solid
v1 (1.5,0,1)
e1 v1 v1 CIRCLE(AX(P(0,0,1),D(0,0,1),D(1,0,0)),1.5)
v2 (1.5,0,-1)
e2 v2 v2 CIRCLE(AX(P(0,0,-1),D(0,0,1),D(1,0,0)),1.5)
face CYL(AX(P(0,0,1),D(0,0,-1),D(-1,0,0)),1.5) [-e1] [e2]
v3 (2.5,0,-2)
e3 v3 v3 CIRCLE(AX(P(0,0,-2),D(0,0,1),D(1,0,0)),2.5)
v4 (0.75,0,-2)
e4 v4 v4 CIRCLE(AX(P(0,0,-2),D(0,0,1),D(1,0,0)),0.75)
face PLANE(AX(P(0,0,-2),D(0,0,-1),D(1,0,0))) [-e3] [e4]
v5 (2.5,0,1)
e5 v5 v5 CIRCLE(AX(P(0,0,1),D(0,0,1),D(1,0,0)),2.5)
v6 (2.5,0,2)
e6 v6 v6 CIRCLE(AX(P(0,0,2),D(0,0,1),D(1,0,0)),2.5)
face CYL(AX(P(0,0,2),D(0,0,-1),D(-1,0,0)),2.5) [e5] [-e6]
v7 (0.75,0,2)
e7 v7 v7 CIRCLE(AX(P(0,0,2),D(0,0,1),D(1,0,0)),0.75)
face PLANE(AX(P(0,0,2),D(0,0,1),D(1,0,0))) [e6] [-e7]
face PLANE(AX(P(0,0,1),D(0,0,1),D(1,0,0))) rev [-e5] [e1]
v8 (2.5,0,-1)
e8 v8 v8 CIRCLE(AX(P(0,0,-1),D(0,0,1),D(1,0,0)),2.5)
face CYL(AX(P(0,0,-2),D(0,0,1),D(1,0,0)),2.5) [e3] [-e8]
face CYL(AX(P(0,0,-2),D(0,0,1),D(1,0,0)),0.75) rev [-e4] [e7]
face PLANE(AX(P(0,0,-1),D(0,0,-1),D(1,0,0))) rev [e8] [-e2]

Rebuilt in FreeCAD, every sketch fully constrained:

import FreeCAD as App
import Part
import Sketcher
from FreeCAD import Vector

doc = App.newDocument("Part")
body = doc.addObject("PartDesign::Body", "Body")

# Sketch on XY plane
sketch1 = body.newObject("Sketcher::SketchObject", "Sketch")
sketch1.AttachmentSupport = (doc.getObject("XY_Plane"), [""])
sketch1.MapMode = "FlatFace"
sketch1.addGeometry(Part.Circle(Vector(0, 0, 0), Vector(0, 0, 1), 1.5), False)
sketch1.addConstraint([
    Sketcher.Constraint("Coincident", 0, 3, -1, 1),
    Sketcher.Constraint("Diameter", 0, 3.0),
])
pad1 = body.newObject("PartDesign::Pad", "Pad")
pad1.Profile = sketch1
pad1.Length = 2
pad1.Midplane = True

# Sketch on XY plane
sketch2 = body.newObject("Sketcher::SketchObject", "Sketch001")
sketch2.AttachmentSupport = (doc.getObject("XY_Plane"), [""])
sketch2.MapMode = "FlatFace"
sketch2.AttachmentOffset = App.Placement(Vector(0, 0, 1), App.Rotation())
sketch2.addGeometry(Part.Circle(Vector(0, 0, 0), Vector(0, 0, 1), 2.5), False)
sketch2.addConstraint([
    Sketcher.Constraint("Coincident", 0, 3, -1, 1),
    Sketcher.Constraint("Diameter", 0, 5.0),
])
pad2 = body.newObject("PartDesign::Pad", "Pad001")
pad2.Profile = sketch2
pad2.Length = 1
doc.recompute()

mirrored = body.newObject("PartDesign::Mirrored", "Mirrored")
mirrored.Originals = [pad2]
mirrored.MirrorPlane = (doc.getObject("XY_Plane"), [""])
body.Tip = mirrored

# Sketch on XY plane
sketch3 = body.newObject("Sketcher::SketchObject", "Sketch002")
sketch3.AttachmentSupport = (doc.getObject("XY_Plane"), [""])
sketch3.MapMode = "FlatFace"
sketch3.AttachmentOffset = App.Placement(Vector(0, 0, 2), App.Rotation())
sketch3.addGeometry(Part.Circle(Vector(0, 0, 0), Vector(0, 0, 1), 0.8), False)
sketch3.addConstraint([
    Sketcher.Constraint("Coincident", 0, 3, -1, 1),
    Sketcher.Constraint("Diameter", 0, 1.5),
])
pocket1 = body.newObject("PartDesign::Pocket", "Pocket")
pocket1.Profile = sketch3
pocket1.Type = "ThroughAll"

doc.recompute()
